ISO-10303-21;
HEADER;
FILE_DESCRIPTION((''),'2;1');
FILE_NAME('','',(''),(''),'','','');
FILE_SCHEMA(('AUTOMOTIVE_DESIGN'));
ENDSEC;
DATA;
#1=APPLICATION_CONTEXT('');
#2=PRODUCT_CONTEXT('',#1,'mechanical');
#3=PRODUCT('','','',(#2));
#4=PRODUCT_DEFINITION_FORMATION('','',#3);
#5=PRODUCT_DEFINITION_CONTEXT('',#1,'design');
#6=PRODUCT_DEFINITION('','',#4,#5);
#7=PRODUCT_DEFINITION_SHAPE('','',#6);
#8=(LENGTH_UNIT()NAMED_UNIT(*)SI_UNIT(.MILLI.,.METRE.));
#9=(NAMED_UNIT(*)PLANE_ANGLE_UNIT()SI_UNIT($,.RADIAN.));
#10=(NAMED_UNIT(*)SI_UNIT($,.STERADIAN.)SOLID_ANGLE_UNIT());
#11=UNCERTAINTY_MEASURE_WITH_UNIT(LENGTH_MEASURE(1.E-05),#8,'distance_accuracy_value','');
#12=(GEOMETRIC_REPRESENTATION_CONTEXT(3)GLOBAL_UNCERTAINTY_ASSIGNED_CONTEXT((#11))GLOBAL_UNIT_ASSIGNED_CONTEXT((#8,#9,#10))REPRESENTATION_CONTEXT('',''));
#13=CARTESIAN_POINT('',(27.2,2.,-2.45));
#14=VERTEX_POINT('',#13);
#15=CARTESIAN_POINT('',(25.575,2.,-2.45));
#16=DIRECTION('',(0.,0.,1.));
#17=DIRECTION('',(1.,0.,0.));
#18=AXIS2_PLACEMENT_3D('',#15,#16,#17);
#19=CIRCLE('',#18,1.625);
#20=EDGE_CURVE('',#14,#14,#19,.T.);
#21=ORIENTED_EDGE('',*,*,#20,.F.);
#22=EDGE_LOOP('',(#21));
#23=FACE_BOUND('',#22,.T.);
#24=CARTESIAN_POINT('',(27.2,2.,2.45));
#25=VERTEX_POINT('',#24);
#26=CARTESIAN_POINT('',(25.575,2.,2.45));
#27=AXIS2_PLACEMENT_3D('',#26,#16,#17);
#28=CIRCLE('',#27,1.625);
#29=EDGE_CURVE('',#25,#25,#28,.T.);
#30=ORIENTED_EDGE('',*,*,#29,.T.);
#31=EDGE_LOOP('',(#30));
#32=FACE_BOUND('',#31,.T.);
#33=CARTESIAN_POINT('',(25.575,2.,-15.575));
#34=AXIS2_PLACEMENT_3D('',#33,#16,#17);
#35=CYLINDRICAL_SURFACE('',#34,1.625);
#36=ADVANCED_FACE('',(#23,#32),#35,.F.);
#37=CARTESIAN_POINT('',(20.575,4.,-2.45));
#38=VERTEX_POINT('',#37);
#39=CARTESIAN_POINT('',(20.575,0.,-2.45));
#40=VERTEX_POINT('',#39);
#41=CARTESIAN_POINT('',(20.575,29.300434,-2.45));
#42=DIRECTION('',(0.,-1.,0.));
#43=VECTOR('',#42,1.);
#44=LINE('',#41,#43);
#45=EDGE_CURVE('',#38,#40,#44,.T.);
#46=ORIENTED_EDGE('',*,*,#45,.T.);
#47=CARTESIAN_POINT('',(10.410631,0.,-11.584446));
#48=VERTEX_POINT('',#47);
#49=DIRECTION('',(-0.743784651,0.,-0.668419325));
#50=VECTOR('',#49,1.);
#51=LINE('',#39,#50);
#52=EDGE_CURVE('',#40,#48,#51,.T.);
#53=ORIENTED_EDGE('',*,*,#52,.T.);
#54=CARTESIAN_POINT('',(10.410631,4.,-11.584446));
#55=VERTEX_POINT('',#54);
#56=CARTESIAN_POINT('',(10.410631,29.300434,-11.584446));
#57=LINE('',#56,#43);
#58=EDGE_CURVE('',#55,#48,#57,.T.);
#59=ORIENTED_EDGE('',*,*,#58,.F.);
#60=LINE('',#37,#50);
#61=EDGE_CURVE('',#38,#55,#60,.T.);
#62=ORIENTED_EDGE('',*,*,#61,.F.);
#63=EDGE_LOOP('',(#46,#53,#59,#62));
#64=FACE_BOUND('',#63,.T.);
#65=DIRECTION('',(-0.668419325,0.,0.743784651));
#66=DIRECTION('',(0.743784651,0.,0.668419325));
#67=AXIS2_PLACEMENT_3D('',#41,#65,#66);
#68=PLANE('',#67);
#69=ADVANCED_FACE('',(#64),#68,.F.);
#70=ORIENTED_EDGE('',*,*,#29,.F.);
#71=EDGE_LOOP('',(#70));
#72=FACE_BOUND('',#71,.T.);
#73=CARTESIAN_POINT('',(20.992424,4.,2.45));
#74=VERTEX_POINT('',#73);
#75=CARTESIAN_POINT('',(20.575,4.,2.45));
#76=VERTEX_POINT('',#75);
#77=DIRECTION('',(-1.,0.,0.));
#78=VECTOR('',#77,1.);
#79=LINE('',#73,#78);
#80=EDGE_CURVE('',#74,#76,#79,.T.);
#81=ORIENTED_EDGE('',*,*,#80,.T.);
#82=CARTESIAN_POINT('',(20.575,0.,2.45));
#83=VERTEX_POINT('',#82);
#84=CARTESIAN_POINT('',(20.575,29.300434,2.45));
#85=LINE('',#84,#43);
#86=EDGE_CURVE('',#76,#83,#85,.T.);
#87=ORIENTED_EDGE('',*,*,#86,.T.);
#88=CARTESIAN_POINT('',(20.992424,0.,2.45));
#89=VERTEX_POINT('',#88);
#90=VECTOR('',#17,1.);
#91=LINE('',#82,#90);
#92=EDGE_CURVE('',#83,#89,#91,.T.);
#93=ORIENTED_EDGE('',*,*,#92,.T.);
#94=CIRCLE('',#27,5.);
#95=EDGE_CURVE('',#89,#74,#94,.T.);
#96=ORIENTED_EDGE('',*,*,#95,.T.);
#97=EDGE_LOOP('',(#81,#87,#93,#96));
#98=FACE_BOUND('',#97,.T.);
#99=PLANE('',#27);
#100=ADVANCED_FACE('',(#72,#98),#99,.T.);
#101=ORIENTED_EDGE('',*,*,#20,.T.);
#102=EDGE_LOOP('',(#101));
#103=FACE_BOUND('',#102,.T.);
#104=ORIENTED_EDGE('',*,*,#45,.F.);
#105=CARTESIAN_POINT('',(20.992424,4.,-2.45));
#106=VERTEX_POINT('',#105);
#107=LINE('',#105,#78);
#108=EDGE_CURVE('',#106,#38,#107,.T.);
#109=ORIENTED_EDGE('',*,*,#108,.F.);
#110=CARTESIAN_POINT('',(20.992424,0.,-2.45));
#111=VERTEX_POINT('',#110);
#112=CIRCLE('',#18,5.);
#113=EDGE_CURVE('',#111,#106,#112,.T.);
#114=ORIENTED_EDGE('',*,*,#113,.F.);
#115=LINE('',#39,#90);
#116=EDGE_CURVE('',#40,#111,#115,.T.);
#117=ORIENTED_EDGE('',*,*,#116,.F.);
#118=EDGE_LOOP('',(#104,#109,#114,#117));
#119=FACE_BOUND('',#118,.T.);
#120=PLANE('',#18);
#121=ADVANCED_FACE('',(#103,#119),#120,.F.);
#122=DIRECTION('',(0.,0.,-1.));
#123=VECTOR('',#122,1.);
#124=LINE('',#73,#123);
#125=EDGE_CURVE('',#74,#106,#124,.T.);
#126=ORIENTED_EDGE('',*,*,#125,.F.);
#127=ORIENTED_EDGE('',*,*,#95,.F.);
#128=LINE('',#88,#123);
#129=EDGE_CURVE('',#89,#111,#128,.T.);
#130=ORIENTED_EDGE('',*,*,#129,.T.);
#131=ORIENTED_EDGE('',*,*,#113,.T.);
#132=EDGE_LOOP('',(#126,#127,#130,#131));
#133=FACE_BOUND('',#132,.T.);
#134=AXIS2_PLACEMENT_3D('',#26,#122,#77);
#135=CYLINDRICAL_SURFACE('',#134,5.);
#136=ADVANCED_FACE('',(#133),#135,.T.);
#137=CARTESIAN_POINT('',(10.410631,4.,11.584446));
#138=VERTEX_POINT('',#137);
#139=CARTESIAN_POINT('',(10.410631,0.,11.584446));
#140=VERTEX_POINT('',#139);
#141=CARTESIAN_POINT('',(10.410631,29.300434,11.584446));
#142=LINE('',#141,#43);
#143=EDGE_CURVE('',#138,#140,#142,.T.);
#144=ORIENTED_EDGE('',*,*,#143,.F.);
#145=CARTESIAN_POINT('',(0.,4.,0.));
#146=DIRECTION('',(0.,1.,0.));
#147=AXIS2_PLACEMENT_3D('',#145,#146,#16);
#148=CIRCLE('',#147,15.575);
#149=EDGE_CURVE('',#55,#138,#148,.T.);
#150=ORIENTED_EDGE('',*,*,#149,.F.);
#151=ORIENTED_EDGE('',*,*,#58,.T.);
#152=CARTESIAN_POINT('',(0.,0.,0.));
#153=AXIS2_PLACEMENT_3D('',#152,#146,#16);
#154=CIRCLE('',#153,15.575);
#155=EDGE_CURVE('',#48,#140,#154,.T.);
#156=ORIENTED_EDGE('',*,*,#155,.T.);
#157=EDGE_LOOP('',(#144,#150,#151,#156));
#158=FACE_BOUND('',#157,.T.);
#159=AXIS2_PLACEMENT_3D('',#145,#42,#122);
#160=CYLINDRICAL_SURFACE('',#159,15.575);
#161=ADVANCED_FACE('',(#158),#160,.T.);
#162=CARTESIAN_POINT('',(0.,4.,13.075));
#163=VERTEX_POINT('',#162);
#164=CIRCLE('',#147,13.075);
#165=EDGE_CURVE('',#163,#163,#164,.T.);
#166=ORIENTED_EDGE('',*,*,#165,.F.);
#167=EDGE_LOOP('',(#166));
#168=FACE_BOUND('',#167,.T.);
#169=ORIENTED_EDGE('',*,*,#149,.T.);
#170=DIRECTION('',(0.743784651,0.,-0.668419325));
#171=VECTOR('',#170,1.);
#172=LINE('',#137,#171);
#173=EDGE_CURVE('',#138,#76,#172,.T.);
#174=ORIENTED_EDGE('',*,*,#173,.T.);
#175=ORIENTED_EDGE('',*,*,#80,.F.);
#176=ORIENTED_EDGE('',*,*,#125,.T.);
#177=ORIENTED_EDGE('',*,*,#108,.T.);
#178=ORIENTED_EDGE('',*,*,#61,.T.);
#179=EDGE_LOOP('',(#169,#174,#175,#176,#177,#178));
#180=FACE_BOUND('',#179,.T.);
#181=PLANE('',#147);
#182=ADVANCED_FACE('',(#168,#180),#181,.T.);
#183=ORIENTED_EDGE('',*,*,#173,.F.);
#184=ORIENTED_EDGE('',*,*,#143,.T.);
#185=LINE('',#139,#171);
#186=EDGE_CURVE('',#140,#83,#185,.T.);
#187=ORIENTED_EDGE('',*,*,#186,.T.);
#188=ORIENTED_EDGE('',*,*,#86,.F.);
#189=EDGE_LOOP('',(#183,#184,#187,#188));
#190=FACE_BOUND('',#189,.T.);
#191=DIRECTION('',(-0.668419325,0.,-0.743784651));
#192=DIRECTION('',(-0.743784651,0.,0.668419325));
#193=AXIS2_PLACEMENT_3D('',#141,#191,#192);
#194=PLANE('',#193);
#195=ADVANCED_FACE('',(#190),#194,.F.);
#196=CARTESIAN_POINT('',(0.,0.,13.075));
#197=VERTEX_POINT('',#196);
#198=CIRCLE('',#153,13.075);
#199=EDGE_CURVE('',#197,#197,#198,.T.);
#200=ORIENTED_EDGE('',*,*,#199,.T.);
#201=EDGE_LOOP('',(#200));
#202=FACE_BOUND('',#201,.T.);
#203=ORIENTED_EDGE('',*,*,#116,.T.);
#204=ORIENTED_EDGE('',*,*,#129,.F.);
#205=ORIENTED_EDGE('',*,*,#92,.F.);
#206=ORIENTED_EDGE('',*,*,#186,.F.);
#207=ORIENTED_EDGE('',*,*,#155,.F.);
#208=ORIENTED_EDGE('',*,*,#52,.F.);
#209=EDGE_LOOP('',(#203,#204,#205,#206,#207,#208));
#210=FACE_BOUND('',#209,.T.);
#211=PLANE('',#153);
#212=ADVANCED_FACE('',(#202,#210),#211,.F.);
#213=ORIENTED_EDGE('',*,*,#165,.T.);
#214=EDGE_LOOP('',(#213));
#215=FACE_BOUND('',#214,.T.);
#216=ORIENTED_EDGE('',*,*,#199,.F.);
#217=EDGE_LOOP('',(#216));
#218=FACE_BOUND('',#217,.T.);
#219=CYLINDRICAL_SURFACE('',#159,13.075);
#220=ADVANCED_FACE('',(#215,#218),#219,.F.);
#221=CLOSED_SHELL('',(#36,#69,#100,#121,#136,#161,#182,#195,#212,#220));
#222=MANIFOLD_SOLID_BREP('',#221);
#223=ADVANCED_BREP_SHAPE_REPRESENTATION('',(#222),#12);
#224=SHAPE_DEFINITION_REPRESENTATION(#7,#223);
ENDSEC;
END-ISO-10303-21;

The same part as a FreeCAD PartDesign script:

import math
import FreeCAD as App
import Part
import Sketcher

doc = App.newDocument("Part")
body = doc.addObject("PartDesign::Body", "Body")

# Sketch on XZ plane
sketch1 = body.newObject("Sketcher::SketchObject", "Sketch")
sketch1.AttachmentSupport = (doc.getObject("XZ_Plane"), [""])
sketch1.MapMode = "FlatFace"
sketch1.addGeometry(Part.Circle(App.Vector(0, 0, 0), App.Vector(0, 0, 1), 16), False)
sketch1.addGeometry(Part.Circle(App.Vector(0, 0, 0), App.Vector(0, 0, 1), 13), False)
sketch1.addConstraint(Sketcher.Constraint("Coincident", 0, 3, -1, 1))
sketch1.addConstraint(Sketcher.Constraint("Coincident", 1, 3, -1, 1))
sketch1.addConstraint(Sketcher.Constraint("Diameter", 0, 31.15))
sketch1.addConstraint(Sketcher.Constraint("Diameter", 1, 26.15))
pad1 = body.newObject("PartDesign::Pad", "Pad")
pad1.Profile = sketch1
pad1.Length = 4
pad1.Reversed = True

# Sketch on XZ plane
sketch2 = body.newObject("Sketcher::SketchObject", "Sketch001")
sketch2.AttachmentSupport = (doc.getObject("XZ_Plane"), [""])
sketch2.MapMode = "FlatFace"
sketch2.addGeometry(Part.LineSegment(App.Vector(20.6, -2.5, 0), App.Vector(10.4, -11.6, 0)), False)
sketch2.addGeometry(Part.ArcOfCircle(Part.Circle(App.Vector(0, 0, 0), App.Vector(0, 0, 1), 15.6), math.radians(-48), math.radians(48)), False)
sketch2.addGeometry(Part.LineSegment(App.Vector(10.4, 11.6, 0), App.Vector(20.6, 2.5, 0)), False)
sketch2.addGeometry(Part.LineSegment(App.Vector(20.6, 2.5, 0), App.Vector(20.6, -2.5, 0)), False)
sketch2.addConstraint(Sketcher.Constraint("Tangent", 0, 2, 1, 1))
sketch2.addConstraint(Sketcher.Constraint("Tangent", 1, 2, 2, 1))
sketch2.addConstraint(Sketcher.Constraint("Coincident", 2, 2, 3, 1))
sketch2.addConstraint(Sketcher.Constraint("Coincident", 3, 2, 0, 1))
sketch2.addConstraint(Sketcher.Constraint("Vertical", 3))
sketch2.addConstraint(Sketcher.Constraint("Coincident", 1, 3, -1, 1))
sketch2.addConstraint(Sketcher.Constraint("Vertical", 0, 2, 1, 2))
sketch2.addConstraint(Sketcher.Constraint("DistanceY", 3, 2, 3, 1, 4.9))
sketch2.addConstraint(Sketcher.Constraint("Radius", 1, 15.575))
sketch2.addConstraint(Sketcher.Constraint("DistanceX", -1, 1, 2, 2, 20.575))
pad2 = body.newObject("PartDesign::Pad", "Pad001")
pad2.Profile = sketch2
pad2.Length = 4
pad2.Reversed = True

# Sketch on XY plane
sketch3 = body.newObject("Sketcher::SketchObject", "Sketch002")
sketch3.AttachmentSupport = (doc.getObject("XY_Plane"), [""])
sketch3.MapMode = "FlatFace"
sketch3.addGeometry(Part.LineSegment(App.Vector(20.57, 4, 0), App.Vector(20.57, 0, 0)), False)
sketch3.addGeometry(Part.LineSegment(App.Vector(20.57, 0, 0), App.Vector(20.99, 0, 0)), False)
sketch3.addGeometry(Part.ArcOfCircle(Part.Circle(App.Vector(25.57, 2, 0), App.Vector(0, 0, 1), 5), math.radians(-156), math.radians(156)), False)
sketch3.addGeometry(Part.LineSegment(App.Vector(20.99, 4, 0), App.Vector(20.57, 4, 0)), False)
sketch3.addConstraint(Sketcher.Constraint("Coincident", 0, 2, 1, 1))
sketch3.addConstraint(Sketcher.Constraint("Coincident", 1, 2, 2, 1))
sketch3.addConstraint(Sketcher.Constraint("Coincident", 2, 2, 3, 1))
sketch3.addConstraint(Sketcher.Constraint("Coincident", 3, 2, 0, 1))
sketch3.addConstraint(Sketcher.Constraint("Vertical", 0))
sketch3.addConstraint(Sketcher.Constraint("Horizontal", 1))
sketch3.addConstraint(Sketcher.Constraint("Horizontal", 3))
sketch3.addConstraint(Sketcher.Constraint("PointOnObject", 0, 2, -1))
sketch3.addConstraint(Sketcher.Constraint("Vertical", 1, 2, 2, 2))
sketch3.addConstraint(Sketcher.Constraint("Radius", 2, 5.0))
sketch3.addConstraint(Sketcher.Constraint("DistanceY", 0, 2, 0, 1, 4.0))
sketch3.addConstraint(Sketcher.Constraint("DistanceX", 0, 2, 2, 3, 5.0))
sketch3.addConstraint(Sketcher.Constraint("DistanceX", -1, 1, 2, 3, 25.575))
pad3 = body.newObject("PartDesign::Pad", "Pad002")
pad3.Profile = sketch3
pad3.Length = 4.9
pad3.Midplane = True

# Sketch on XY plane
sketch4 = body.newObject("Sketcher::SketchObject", "Sketch003")
sketch4.AttachmentSupport = (doc.getObject("XY_Plane"), [""])
sketch4.MapMode = "FlatFace"
sketch4.AttachmentOffset = App.Placement(App.Vector(0, 0, 2.45), App.Rotation())
sketch4.addGeometry(Part.Circle(App.Vector(25.6, 2, 0), App.Vector(0, 0, 1), 1.6), False)
sketch4.addConstraint(Sketcher.Constraint("Diameter", 0, 3.25))
sketch4.addConstraint(Sketcher.Constraint("DistanceY", -1, 1, 0, 3, 2.0))
sketch4.addConstraint(Sketcher.Constraint("DistanceX", -1, 1, 0, 3, 25.575))
pocket1 = body.newObject("PartDesign::Pocket", "Pocket")
pocket1.Profile = sketch4
pocket1.Type = "ThroughAll"

doc.recompute()
